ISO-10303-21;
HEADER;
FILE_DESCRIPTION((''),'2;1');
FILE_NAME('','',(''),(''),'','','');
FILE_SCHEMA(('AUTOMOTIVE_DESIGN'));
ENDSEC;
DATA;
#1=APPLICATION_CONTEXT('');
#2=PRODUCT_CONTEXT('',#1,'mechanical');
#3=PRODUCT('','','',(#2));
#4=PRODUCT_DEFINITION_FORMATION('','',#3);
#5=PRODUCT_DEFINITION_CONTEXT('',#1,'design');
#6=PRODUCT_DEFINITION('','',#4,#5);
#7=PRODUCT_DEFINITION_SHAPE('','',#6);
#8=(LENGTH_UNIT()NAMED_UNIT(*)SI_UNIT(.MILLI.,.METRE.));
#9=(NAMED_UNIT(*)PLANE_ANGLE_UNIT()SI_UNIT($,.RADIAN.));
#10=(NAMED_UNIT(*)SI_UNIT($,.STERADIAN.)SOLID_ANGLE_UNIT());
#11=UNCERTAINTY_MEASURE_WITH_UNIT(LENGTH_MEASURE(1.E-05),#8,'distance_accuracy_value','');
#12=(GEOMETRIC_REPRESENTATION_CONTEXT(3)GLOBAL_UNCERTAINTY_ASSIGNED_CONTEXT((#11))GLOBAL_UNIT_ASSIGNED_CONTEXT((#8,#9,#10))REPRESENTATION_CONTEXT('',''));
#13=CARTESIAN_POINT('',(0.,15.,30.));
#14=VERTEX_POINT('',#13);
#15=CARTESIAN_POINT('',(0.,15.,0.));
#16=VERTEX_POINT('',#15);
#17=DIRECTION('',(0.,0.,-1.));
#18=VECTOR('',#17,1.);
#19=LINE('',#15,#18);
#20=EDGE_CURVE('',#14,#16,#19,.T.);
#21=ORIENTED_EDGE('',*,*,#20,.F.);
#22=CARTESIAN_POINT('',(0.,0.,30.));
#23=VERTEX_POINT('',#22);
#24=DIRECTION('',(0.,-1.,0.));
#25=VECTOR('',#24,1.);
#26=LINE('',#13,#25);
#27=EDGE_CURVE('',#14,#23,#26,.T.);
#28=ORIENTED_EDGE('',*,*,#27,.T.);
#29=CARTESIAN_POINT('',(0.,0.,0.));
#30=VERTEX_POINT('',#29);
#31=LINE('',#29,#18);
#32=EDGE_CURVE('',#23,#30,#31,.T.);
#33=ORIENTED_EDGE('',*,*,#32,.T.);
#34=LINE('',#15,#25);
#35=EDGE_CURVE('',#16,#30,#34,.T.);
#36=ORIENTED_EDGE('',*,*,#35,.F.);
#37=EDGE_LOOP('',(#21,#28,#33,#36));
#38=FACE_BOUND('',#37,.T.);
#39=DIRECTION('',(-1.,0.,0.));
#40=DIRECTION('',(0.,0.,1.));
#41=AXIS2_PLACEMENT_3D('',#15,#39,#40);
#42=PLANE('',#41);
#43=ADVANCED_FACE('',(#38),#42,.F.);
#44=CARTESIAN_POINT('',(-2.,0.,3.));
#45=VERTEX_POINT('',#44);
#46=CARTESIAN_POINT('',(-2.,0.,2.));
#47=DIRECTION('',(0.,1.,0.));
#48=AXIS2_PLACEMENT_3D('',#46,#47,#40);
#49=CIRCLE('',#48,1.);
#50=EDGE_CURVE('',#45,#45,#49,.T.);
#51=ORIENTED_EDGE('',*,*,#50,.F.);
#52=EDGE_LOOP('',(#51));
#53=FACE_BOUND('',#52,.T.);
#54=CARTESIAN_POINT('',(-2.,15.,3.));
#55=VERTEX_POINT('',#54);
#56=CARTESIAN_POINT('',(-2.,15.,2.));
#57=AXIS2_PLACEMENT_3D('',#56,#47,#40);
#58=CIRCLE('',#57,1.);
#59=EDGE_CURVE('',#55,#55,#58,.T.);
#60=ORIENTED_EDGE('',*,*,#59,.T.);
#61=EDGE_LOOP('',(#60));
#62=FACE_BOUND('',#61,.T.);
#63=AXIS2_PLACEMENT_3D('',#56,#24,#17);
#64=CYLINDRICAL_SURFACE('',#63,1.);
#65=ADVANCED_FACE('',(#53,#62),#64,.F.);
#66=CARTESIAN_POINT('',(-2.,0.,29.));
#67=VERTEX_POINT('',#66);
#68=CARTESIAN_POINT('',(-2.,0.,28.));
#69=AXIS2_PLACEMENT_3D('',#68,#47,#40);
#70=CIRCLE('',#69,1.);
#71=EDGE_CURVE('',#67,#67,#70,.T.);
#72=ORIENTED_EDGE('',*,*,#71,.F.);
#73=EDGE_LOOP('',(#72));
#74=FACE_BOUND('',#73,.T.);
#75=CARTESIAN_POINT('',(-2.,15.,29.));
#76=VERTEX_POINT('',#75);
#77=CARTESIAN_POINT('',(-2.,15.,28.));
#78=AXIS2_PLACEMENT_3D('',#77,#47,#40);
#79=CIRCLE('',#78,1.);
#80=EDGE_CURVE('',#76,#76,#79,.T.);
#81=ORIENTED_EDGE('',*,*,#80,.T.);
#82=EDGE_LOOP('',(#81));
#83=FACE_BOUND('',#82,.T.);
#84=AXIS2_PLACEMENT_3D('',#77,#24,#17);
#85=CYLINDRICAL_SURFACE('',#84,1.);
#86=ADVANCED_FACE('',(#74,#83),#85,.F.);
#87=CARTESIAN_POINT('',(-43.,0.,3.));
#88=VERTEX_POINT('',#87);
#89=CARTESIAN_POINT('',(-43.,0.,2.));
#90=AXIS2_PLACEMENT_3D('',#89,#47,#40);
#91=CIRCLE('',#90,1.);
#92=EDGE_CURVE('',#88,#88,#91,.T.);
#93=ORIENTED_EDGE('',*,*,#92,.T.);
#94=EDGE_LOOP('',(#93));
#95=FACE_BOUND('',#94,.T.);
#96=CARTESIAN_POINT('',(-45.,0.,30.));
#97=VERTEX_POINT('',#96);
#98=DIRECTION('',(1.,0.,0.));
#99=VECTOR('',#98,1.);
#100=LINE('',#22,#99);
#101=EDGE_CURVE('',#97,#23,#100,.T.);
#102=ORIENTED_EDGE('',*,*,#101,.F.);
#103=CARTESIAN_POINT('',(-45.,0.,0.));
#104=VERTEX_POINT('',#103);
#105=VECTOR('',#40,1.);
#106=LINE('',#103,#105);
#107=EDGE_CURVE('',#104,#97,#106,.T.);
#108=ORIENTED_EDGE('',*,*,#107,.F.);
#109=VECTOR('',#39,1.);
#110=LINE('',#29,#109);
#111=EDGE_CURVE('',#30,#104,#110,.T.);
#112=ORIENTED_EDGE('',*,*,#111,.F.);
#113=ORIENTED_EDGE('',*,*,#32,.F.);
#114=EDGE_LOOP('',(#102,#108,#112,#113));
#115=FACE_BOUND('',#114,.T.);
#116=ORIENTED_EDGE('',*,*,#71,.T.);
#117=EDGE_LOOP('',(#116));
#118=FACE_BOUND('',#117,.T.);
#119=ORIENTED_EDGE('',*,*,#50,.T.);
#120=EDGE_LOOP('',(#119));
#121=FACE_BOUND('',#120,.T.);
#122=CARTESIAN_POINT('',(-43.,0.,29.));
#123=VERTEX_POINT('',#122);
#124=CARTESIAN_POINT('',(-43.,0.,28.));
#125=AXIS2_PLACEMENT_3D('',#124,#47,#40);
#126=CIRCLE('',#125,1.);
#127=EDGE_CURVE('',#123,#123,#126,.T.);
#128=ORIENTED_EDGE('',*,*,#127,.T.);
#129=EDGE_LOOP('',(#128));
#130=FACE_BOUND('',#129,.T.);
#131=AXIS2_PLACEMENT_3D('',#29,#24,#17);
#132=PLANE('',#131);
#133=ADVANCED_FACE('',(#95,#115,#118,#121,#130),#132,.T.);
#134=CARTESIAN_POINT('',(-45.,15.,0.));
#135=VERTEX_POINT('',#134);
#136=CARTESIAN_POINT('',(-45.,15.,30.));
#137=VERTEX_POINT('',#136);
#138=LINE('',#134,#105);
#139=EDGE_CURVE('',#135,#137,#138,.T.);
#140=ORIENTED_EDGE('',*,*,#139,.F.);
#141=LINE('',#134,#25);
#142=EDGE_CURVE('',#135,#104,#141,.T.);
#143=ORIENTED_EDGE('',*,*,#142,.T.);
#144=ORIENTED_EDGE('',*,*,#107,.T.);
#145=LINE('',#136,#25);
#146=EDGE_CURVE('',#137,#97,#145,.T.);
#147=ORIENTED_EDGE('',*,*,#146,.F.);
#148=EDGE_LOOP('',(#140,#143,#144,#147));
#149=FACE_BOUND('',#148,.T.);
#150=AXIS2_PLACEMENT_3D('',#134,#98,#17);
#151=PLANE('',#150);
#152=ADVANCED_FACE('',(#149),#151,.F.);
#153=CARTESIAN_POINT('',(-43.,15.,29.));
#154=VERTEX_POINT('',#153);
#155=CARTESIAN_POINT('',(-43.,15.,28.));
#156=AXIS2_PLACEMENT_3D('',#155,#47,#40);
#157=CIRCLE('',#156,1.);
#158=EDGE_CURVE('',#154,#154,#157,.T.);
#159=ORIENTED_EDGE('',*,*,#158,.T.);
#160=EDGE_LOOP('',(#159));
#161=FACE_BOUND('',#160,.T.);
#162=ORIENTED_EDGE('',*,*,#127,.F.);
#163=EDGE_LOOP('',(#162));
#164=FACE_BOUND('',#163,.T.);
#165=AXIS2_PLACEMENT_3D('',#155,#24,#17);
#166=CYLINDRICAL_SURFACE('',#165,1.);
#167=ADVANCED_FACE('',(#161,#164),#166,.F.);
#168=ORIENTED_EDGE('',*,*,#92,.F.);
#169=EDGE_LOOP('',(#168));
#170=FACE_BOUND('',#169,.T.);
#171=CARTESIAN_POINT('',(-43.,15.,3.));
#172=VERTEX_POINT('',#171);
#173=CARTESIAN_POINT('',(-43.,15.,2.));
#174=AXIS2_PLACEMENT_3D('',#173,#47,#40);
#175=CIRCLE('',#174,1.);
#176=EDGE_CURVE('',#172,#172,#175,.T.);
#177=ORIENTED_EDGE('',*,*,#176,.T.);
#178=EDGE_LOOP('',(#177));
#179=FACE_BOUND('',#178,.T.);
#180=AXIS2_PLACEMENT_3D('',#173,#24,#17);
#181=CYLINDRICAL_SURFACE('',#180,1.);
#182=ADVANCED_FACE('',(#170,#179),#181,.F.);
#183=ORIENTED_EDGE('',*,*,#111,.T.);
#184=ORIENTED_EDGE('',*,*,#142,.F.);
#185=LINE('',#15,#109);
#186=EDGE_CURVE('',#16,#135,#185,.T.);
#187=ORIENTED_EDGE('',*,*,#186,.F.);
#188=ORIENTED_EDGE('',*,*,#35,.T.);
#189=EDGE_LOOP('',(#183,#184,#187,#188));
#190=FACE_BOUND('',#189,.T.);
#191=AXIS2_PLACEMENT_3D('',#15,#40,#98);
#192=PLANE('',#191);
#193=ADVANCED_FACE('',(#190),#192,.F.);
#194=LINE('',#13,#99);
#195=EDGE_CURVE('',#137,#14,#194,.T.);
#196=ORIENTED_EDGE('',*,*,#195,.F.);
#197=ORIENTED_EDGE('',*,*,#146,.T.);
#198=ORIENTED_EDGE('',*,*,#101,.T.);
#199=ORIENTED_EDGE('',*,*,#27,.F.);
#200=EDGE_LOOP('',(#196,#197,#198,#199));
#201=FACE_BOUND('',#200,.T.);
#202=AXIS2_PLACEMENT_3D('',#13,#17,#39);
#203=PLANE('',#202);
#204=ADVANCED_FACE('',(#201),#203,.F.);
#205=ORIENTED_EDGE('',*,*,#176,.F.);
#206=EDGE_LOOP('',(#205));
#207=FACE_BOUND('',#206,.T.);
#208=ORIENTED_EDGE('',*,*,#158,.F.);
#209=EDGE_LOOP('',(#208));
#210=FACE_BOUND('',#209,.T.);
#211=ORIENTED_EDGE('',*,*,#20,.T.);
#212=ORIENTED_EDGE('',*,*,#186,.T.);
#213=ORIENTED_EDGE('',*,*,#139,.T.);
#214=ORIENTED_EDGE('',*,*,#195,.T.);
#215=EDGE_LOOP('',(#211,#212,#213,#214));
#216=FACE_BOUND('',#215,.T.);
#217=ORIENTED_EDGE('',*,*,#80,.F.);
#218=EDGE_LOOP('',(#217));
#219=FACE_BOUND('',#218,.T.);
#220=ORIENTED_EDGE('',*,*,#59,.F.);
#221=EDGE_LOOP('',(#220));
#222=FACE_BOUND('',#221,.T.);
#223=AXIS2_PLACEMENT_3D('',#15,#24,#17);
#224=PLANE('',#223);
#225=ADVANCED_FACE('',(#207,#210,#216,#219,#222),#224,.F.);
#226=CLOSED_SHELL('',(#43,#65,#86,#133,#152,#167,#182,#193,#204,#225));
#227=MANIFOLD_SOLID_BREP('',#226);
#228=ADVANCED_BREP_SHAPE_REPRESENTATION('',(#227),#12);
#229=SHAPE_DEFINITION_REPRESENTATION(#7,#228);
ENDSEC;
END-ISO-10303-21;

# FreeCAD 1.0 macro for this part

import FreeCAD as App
import Part
import Sketcher

V = App.Vector
Q = App.Units.Quantity


def add_polygon(sketch, points):
    """Adds a closed chain of lines whose ends are joined by coincident constraints."""
    first, n = sketch.GeometryCount, len(points)
    for a, b in zip(points, points[1:] + points[:1]):
        sketch.addGeometry(Part.LineSegment(App.Vector(*a, 0), App.Vector(*b, 0)), False)
    for i in range(n):
        sketch.addConstraint(Sketcher.Constraint("Coincident", first + i, 2, first + (i + 1) % n, 1))

doc = App.newDocument("Part")
body = doc.addObject("PartDesign::Body", "Body")

# Sketch on XZ plane
sketch1 = doc.addObject("Sketcher::SketchObject", "Sketch")
body.addObject(sketch1)
sketch1.AttachmentSupport = (doc.XZ_Plane, [""])
sketch1.MapMode = "FlatFace"
add_polygon(sketch1, [(-45, 0), (-45, 30), (0, 30), (0, 0)])  # lines 0-3
sketch1.addGeometry(Part.Circle(V(-43, 28, 0), V(0, 0, 1), 1), False)  # 4
sketch1.addGeometry(Part.Circle(V(-2, 28, 0), V(0, 0, 1), 1), False)  # 5
sketch1.addGeometry(Part.Circle(V(-43, 2, 0), V(0, 0, 1), 1), False)  # 6
sketch1.addGeometry(Part.Circle(V(-2, 2, 0), V(0, 0, 1), 1), False)  # 7
sketch1.addConstraint(Sketcher.Constraint("Vertical", 0))
sketch1.addConstraint(Sketcher.Constraint("Horizontal", 1))
sketch1.addConstraint(Sketcher.Constraint("Vertical", 2))
sketch1.addConstraint(Sketcher.Constraint("Horizontal", 3))
sketch1.addConstraint(Sketcher.Constraint("Coincident", 2, 2, -1, 1))
sketch1.addConstraint(Sketcher.Constraint("Equal", 4, 5))
sketch1.addConstraint(Sketcher.Constraint("Equal", 5, 6))
sketch1.addConstraint(Sketcher.Constraint("Equal", 6, 7))
sketch1.addConstraint(Sketcher.Constraint("Horizontal", 4, 3, 5, 3))
sketch1.addConstraint(Sketcher.Constraint("Horizontal", 6, 3, 7, 3))
sketch1.addConstraint(Sketcher.Constraint("Vertical", 4, 3, 6, 3))
sketch1.addConstraint(Sketcher.Constraint("Vertical", 5, 3, 7, 3))
sketch1.addConstraint(Sketcher.Constraint("Diameter", 4, Q("2 mm")))
sketch1.addConstraint(Sketcher.Constraint("DistanceX", 1, 1, 1, 2, Q("45 mm")))
sketch1.addConstraint(Sketcher.Constraint("DistanceY", 0, 1, 0, 2, Q("30 mm")))
sketch1.addConstraint(Sketcher.Constraint("DistanceX", 4, 3, -1, 1, Q("43 mm")))
sketch1.addConstraint(Sketcher.Constraint("DistanceY", -1, 1, 4, 3, Q("28 mm")))
sketch1.addConstraint(Sketcher.Constraint("DistanceX", 5, 3, -1, 1, Q("2 mm")))
sketch1.addConstraint(Sketcher.Constraint("DistanceY", -1, 1, 6, 3, Q("2 mm")))
pad1 = doc.addObject("PartDesign::Pad", "Pad")
body.addObject(pad1)
pad1.Profile = sketch1
pad1.Length = 15
pad1.Reversed = True

doc.recompute()
